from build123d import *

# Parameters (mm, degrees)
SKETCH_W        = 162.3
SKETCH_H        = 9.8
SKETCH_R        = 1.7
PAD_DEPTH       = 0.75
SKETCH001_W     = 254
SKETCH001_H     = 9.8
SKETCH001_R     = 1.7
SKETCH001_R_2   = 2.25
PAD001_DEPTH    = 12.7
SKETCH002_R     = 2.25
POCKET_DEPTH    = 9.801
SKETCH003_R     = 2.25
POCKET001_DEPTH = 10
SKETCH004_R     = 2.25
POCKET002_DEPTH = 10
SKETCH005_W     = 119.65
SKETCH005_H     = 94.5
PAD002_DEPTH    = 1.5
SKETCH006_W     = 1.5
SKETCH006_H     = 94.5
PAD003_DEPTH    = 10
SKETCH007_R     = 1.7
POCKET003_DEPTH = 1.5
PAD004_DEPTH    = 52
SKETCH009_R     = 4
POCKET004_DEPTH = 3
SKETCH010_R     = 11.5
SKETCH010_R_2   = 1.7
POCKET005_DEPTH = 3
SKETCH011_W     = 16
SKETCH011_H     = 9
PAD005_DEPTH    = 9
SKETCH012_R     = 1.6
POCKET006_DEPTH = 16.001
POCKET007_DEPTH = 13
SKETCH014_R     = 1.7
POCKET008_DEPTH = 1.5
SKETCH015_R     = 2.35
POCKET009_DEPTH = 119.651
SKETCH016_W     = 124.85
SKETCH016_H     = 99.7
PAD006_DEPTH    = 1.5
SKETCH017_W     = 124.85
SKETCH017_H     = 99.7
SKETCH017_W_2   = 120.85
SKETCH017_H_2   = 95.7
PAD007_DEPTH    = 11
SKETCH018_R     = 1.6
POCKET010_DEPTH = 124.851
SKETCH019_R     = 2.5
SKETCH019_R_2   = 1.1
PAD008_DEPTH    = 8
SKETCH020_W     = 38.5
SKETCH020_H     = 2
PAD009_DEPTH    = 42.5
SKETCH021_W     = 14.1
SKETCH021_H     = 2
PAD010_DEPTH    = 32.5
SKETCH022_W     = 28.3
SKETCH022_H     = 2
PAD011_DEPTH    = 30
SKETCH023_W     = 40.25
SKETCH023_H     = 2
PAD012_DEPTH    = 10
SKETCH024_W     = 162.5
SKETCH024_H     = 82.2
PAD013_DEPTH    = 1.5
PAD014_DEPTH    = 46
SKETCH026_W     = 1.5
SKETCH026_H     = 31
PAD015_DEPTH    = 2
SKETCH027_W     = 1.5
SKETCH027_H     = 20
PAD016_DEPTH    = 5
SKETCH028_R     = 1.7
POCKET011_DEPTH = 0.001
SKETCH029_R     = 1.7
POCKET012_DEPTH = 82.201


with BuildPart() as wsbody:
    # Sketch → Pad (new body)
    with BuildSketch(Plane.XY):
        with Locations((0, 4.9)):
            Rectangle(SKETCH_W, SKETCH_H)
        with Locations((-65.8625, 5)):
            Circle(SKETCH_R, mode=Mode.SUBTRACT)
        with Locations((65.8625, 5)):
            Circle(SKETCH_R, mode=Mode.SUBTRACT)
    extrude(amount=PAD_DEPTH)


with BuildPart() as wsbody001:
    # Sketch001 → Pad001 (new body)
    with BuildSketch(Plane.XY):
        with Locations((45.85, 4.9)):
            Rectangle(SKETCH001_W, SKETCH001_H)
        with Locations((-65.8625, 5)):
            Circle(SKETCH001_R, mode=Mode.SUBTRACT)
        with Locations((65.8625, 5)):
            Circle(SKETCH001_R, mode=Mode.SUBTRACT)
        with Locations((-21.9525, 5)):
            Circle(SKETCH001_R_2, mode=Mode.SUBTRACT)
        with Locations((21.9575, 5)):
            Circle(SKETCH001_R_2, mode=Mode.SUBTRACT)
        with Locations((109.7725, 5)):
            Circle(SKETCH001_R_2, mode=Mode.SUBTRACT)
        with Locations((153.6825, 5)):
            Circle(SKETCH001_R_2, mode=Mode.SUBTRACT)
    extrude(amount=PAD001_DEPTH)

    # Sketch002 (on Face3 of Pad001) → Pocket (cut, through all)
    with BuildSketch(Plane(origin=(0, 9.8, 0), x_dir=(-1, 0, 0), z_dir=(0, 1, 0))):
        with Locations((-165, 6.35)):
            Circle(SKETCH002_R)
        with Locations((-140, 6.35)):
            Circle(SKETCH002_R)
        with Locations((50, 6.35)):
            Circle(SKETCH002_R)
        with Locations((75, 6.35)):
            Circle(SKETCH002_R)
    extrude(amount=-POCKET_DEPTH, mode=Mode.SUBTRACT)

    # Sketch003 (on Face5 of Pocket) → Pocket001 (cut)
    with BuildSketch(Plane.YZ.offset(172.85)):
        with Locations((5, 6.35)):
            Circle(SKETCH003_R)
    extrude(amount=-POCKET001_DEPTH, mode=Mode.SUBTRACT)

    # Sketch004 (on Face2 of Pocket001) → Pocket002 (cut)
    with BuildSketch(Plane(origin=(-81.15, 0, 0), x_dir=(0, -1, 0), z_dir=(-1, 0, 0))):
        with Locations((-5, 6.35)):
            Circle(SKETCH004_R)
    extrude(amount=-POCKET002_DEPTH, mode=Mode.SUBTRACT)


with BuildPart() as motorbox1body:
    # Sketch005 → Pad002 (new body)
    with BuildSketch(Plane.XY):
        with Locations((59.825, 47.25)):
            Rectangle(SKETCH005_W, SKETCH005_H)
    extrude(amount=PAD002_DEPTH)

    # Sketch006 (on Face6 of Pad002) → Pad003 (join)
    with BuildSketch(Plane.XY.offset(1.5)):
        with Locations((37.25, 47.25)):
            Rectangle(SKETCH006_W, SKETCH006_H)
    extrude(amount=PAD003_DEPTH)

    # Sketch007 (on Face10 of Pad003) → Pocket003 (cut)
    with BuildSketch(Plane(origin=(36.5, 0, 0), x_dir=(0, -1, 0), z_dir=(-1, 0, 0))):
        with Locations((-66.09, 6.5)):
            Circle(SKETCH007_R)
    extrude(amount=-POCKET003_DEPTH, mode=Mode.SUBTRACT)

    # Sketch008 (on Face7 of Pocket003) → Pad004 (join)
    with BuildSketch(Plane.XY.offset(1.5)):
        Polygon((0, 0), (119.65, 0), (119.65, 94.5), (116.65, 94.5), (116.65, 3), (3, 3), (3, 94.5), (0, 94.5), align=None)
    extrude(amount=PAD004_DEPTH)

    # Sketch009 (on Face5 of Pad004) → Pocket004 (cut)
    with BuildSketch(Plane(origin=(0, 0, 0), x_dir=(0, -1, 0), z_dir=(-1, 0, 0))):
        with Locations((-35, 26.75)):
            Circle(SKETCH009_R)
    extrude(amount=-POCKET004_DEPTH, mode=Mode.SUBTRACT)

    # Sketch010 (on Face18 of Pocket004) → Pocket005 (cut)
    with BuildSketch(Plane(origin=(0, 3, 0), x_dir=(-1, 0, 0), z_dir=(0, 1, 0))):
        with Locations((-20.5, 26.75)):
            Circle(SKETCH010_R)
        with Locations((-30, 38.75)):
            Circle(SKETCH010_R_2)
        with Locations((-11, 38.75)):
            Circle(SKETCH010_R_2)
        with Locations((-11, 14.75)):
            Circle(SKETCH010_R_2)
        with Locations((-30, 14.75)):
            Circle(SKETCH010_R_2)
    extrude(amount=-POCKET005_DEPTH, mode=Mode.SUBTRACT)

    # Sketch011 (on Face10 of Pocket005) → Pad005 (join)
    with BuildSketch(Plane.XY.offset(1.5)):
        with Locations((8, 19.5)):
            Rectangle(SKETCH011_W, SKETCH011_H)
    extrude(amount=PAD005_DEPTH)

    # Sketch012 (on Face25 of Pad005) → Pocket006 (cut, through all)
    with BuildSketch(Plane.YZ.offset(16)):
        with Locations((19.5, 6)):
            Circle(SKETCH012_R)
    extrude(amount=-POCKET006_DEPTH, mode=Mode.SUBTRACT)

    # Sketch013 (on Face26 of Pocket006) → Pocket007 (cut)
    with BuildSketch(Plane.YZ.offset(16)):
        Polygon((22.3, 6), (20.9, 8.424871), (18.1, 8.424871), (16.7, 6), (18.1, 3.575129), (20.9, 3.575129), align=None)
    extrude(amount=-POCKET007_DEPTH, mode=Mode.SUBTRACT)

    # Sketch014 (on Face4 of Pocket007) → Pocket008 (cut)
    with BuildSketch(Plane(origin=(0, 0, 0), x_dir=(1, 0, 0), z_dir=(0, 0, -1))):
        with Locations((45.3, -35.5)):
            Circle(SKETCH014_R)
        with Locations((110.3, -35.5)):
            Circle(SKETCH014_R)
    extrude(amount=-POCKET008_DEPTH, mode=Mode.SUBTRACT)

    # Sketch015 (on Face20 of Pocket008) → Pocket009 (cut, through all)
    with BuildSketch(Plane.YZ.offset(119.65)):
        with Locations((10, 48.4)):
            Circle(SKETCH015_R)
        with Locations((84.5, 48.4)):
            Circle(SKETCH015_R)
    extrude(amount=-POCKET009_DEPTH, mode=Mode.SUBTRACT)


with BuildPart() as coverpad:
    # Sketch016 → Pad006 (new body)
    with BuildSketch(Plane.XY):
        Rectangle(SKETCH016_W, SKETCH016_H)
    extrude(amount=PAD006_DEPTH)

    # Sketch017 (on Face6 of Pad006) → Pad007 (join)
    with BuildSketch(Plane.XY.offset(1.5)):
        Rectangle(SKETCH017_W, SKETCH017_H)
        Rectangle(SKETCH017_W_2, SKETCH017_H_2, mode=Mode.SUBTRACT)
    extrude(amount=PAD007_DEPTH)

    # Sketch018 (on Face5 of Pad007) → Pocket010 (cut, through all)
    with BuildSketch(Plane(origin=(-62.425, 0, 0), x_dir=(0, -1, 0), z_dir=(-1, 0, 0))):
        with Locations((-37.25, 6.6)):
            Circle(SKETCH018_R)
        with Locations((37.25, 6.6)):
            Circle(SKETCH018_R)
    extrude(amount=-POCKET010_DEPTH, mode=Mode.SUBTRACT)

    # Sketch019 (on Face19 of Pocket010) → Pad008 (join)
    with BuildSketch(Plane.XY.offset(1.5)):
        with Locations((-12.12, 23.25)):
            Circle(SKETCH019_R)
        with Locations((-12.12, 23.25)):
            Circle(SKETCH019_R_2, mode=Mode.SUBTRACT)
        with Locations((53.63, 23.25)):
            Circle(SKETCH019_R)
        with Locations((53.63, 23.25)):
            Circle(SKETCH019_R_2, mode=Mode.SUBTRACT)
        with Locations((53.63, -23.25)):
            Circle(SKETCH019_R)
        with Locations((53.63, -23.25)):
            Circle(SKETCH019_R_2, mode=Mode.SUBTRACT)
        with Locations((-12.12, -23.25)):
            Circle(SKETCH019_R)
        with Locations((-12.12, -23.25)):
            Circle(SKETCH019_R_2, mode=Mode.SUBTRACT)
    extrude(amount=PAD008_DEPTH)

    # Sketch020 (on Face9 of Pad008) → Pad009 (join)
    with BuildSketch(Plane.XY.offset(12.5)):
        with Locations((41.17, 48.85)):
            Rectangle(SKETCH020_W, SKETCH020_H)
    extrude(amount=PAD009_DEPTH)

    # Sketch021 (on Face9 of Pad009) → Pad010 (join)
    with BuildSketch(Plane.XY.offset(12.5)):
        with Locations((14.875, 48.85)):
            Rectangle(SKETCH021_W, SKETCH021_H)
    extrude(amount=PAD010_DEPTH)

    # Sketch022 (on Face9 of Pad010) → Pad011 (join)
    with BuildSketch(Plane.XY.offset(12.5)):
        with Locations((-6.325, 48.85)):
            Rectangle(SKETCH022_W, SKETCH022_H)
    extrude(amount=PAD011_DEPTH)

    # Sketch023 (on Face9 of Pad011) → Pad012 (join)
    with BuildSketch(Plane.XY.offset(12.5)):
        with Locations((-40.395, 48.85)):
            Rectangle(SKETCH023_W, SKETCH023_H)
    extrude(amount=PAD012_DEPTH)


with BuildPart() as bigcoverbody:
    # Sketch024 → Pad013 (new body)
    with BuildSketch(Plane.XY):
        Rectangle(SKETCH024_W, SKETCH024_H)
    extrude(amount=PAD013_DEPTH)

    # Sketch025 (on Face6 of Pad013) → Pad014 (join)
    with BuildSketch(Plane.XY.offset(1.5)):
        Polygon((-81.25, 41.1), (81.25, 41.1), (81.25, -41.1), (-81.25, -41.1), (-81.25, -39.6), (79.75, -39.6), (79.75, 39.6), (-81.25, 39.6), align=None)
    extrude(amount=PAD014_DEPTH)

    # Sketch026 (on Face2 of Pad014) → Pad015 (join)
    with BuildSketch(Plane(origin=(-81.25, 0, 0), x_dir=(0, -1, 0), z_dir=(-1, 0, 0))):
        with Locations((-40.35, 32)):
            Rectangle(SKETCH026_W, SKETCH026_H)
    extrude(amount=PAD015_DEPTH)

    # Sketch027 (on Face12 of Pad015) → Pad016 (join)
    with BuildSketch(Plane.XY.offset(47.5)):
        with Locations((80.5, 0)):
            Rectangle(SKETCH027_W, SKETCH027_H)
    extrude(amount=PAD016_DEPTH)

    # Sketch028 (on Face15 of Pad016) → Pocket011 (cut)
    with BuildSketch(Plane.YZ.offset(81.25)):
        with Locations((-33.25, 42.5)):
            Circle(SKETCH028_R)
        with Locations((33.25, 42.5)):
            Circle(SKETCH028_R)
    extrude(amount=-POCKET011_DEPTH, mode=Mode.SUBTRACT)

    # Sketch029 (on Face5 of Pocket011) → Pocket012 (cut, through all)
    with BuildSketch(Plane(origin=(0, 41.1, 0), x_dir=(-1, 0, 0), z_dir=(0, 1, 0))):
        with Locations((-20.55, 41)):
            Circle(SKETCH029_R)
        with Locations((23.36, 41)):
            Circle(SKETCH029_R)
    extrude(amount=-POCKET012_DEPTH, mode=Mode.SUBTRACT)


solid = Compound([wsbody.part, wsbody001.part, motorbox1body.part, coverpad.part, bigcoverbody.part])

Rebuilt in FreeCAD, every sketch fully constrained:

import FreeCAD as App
import Part
import Sketcher

V = App.Vector
Q = App.Units.Quantity


def add_polygon(sketch, points):
    """Adds a closed chain of lines whose ends are joined by coincident constraints."""
    first, n = sketch.GeometryCount, len(points)
    for a, b in zip(points, points[1:] + points[:1]):
        sketch.addGeometry(Part.LineSegment(App.Vector(*a, 0), App.Vector(*b, 0)), False)
    for i in range(n):
        sketch.addConstraint(Sketcher.Constraint("Coincident", first + i, 2, first + (i + 1) % n, 1))

doc = App.newDocument("Part")
body = doc.addObject("PartDesign::Body", "Body")

# Sketch on XY plane
sketch1 = body.newObject("Sketcher::SketchObject", "Sketch")
sketch1.AttachmentSupport = (doc.getObject("XY_Plane"), [""])
sketch1.MapMode = "FlatFace"
add_polygon(sketch1, [(-81.2, 9.8), (-81.2, 0), (81.2, 0), (81.2, 9.8)])  # lines 0-3
sketch1.addGeometry(Part.Circle(V(-65.9, 5, 0), V(0, 0, 1), 1.7), False)  # 4
sketch1.addGeometry(Part.Circle(V(65.9, 5, 0), V(0, 0, 1), 1.7), False)  # 5
sketch1.addConstraint([
    Sketcher.Constraint("Vertical", 0),
    Sketcher.Constraint("Horizontal", 1),
    Sketcher.Constraint("Vertical", 2),
    Sketcher.Constraint("Horizontal", 3),
    Sketcher.Constraint("Equal", 4, 5),
    Sketcher.Constraint("Symmetric", 0, 2, 1, 2, -1, 1),
    Sketcher.Constraint("Symmetric", 4, 3, 5, 3, -2),
    Sketcher.Constraint("Diameter", 4, 3.4),
    Sketcher.Constraint("DistanceX", 1, 1, 1, 2, 162.3),
    Sketcher.Constraint("DistanceY", 0, 2, 0, 1, 9.8),
    Sketcher.Constraint("DistanceY", -1, 1, 4, 3, 5.0),
    Sketcher.Constraint("DistanceX", 4, 3, 5, 3, 131.725),
])
pad1 = body.newObject("PartDesign::Pad", "Pad")
pad1.Profile = sketch1
pad1.Length = 0.75
body2 = doc.addObject("PartDesign::Body", "Body001")

# Sketch on XY plane
sketch2 = body2.newObject("Sketcher::SketchObject", "Sketch001")
sketch2.AttachmentSupport = (doc.getObject("XY_Plane001"), [""])
sketch2.MapMode = "FlatFace"
add_polygon(sketch2, [(-81.2, 9.8), (-81.2, 0), (172.8, 0), (172.8, 9.8)])  # lines 0-3
sketch2.addGeometry(Part.Circle(V(-65.9, 5, 0), V(0, 0, 1), 1.7), False)  # 4
sketch2.addGeometry(Part.Circle(V(-22, 5, 0), V(0, 0, 1), 2.2), False)  # 5
sketch2.addGeometry(Part.Circle(V(22, 5, 0), V(0, 0, 1), 2.2), False)  # 6
sketch2.addGeometry(Part.Circle(V(65.9, 5, 0), V(0, 0, 1), 1.7), False)  # 7
sketch2.addGeometry(Part.Circle(V(109.8, 5, 0), V(0, 0, 1), 2.2), False)  # 8
sketch2.addGeometry(Part.Circle(V(153.7, 5, 0), V(0, 0, 1), 2.2), False)  # 9
sketch2.addConstraint([
    Sketcher.Constraint("Vertical", 0),
    Sketcher.Constraint("Horizontal", 1),
    Sketcher.Constraint("Vertical", 2),
    Sketcher.Constraint("Horizontal", 3),
    Sketcher.Constraint("Equal", 5, 6),
    Sketcher.Constraint("Equal", 4, 7),
    Sketcher.Constraint("Equal", 6, 8),
    Sketcher.Constraint("Equal", 8, 9),
    Sketcher.Constraint("Symmetric", 4, 3, 7, 3, -2),
    Sketcher.Constraint("PointOnObject", 0, 2, -1),
    Sketcher.Constraint("Horizontal", 4, 3, 5, 3),
    Sketcher.Constraint("Horizontal", 5, 3, 6, 3),
    Sketcher.Constraint("Horizontal", 7, 3, 8, 3),
    Sketcher.Constraint("Horizontal", 8, 3, 9, 3),
    Sketcher.Constraint("Diameter", 4, 3.4),
    Sketcher.Constraint("Diameter", 5, 4.5),
    Sketcher.Constraint("DistanceX", 1, 1, 1, 2, 254.0),
    Sketcher.Constraint("DistanceY", 0, 2, 0, 1, 9.8),
    Sketcher.Constraint("DistanceY", -1, 1, 4, 3, 5.0),
    Sketcher.Constraint("DistanceX", 0, 2, -1, 1, 81.15),
    Sketcher.Constraint("DistanceX", 4, 3, 5, 3, 43.91),
    Sketcher.Constraint("DistanceX", 5, 3, 6, 3, 43.91),
    Sketcher.Constraint("DistanceX", 7, 3, 8, 3, 43.91),
    Sketcher.Constraint("DistanceX", 8, 3, 9, 3, 43.91),
    Sketcher.Constraint("DistanceX", 6, 3, 7, 3, 43.905),
])
pad2 = body2.newObject("PartDesign::Pad", "Pad001")
pad2.Profile = sketch2
pad2.Length = 12.7

# Sketch on XZ plane
sketch3 = body2.newObject("Sketcher::SketchObject", "Sketch002")
sketch3.AttachmentSupport = (doc.getObject("XZ_Plane001"), [""])
sketch3.MapMode = "FlatFace"
sketch3.AttachmentOffset = App.Placement(V(0, 0, -9.8), App.Rotation())
sketch3.addGeometry([
    Part.Circle(V(165, 6.3, 0), V(0, 0, 1), 2.2),
    Part.Circle(V(140, 6.3, 0), V(0, 0, 1), 2.2),
    Part.Circle(V(-50, 6.3, 0), V(0, 0, 1), 2.2),
    Part.Circle(V(-75, 6.3, 0), V(0, 0, 1), 2.2),
], False)
sketch3.addConstraint([
    Sketcher.Constraint("Equal", 0, 1),
    Sketcher.Constraint("Equal", 1, 2),
    Sketcher.Constraint("Equal", 2, 3),
    Sketcher.Constraint("Horizontal", 0, 3, 1, 3),
    Sketcher.Constraint("Horizontal", 1, 3, 2, 3),
    Sketcher.Constraint("Horizontal", 2, 3, 3, 3),
    Sketcher.Constraint("Diameter", 0, 4.5),
    Sketcher.Constraint("DistanceX", -1, 1, 0, 3, 165.0),
    Sketcher.Constraint("DistanceX", -1, 1, 1, 3, 140.0),
    Sketcher.Constraint("DistanceX", 2, 3, -1, 1, 50.0),
    Sketcher.Constraint("DistanceX", 3, 3, -1, 1, 75.0),
    Sketcher.Constraint("DistanceY", -1, 1, 0, 3, 6.35),
])
pocket1 = body2.newObject("PartDesign::Pocket", "Pocket")
pocket1.Profile = sketch3
pocket1.Type = "ThroughAll"
pocket1.Reversed = True

# Sketch on YZ plane
sketch4 = body2.newObject("Sketcher::SketchObject", "Sketch003")
sketch4.AttachmentSupport = (doc.getObject("YZ_Plane001"), [""])
sketch4.MapMode = "FlatFace"
sketch4.AttachmentOffset = App.Placement(V(0, 0, 172.85), App.Rotation())
sketch4.addGeometry(Part.Circle(V(5, 6.3, 0), V(0, 0, 1), 2.2), False)
sketch4.addConstraint([
    Sketcher.Constraint("Diameter", 0, 4.5),
    Sketcher.Constraint("DistanceX", -1, 1, 0, 3, 5.0),
    Sketcher.Constraint("DistanceY", -1, 1, 0, 3, 6.35),
])
pocket2 = body2.newObject("PartDesign::Pocket", "Pocket001")
pocket2.Profile = sketch4
pocket2.Length = 10

# Sketch on YZ plane
sketch5 = body2.newObject("Sketcher::SketchObject", "Sketch004")
sketch5.AttachmentSupport = (doc.getObject("YZ_Plane001"), [""])
sketch5.MapMode = "FlatFace"
sketch5.AttachmentOffset = App.Placement(V(0, 0, -81.15), App.Rotation())
sketch5.addGeometry(Part.Circle(V(5, 6.3, 0), V(0, 0, 1), 2.2), False)
sketch5.addConstraint([
    Sketcher.Constraint("Diameter", 0, 4.5),
    Sketcher.Constraint("DistanceX", -1, 1, 0, 3, 5.0),
    Sketcher.Constraint("DistanceY", -1, 1, 0, 3, 6.35),
])
pocket3 = body2.newObject("PartDesign::Pocket", "Pocket002")
pocket3.Profile = sketch5
pocket3.Length = 10
pocket3.Reversed = True
body3 = doc.addObject("PartDesign::Body", "Body002")

# Sketch on XY plane
sketch6 = body3.newObject("Sketcher::SketchObject", "Sketch005")
sketch6.AttachmentSupport = (doc.getObject("XY_Plane002"), [""])
sketch6.MapMode = "FlatFace"
add_polygon(sketch6, [(0, 94), (0, 0), (120, 0), (120, 94)])  # lines 0-3
sketch6.addConstraint([
    Sketcher.Constraint("Vertical", 0),
    Sketcher.Constraint("Horizontal", 1),
    Sketcher.Constraint("Vertical", 2),
    Sketcher.Constraint("Horizontal", 3),
    Sketcher.Constraint("Coincident", 0, 2, -1, 1),
    Sketcher.Constraint("DistanceY", 0, 2, 0, 1, 94.5),
    Sketcher.Constraint("DistanceX", 1, 1, 1, 2, 119.65),
])
pad3 = body3.newObject("PartDesign::Pad", "Pad002")
pad3.Profile = sketch6
pad3.Length = 1.5

# Sketch on XY plane
sketch7 = body3.newObject("Sketcher::SketchObject", "Sketch006")
sketch7.AttachmentSupport = (doc.getObject("XY_Plane002"), [""])
sketch7.MapMode = "FlatFace"
sketch7.AttachmentOffset = App.Placement(V(0, 0, 1.5), App.Rotation())
add_polygon(sketch7, [(36.5, 94.5), (36.5, 0), (38, 0), (38, 94.5)])  # lines 0-3
sketch7.addConstraint([
    Sketcher.Constraint("Vertical", 0),
    Sketcher.Constraint("Horizontal", 1),
    Sketcher.Constraint("Vertical", 2),
    Sketcher.Constraint("Horizontal", 3),
    Sketcher.Constraint("PointOnObject", 0, 2, -1),
    Sketcher.Constraint("DistanceX", 1, 1, 1, 2, 1.5),
    Sketcher.Constraint("DistanceY", 0, 2, 0, 1, 94.5),
    Sketcher.Constraint("DistanceX", -1, 1, 1, 2, 38.0),
])
pad4 = body3.newObject("PartDesign::Pad", "Pad003")
pad4.Profile = sketch7
pad4.Length = 10

# Sketch on YZ plane
sketch8 = body3.newObject("Sketcher::SketchObject", "Sketch007")
sketch8.AttachmentSupport = (doc.getObject("YZ_Plane002"), [""])
sketch8.MapMode = "FlatFace"
sketch8.AttachmentOffset = App.Placement(V(0, 0, 36.5), App.Rotation())
sketch8.addGeometry(Part.Circle(V(66.1, 6.5, 0), V(0, 0, 1), 1.7), False)
sketch8.addConstraint([
    Sketcher.Constraint("Diameter", 0, 3.4),
    Sketcher.Constraint("DistanceY", -1, 1, 0, 3, 6.5),
    Sketcher.Constraint("DistanceX", -1, 1, 0, 3, 66.09),
])
pocket4 = body3.newObject("PartDesign::Pocket", "Pocket003")
pocket4.Profile = sketch8
pocket4.Length = 1.5
pocket4.Reversed = True

# Sketch on XY plane
sketch9 = body3.newObject("Sketcher::SketchObject", "Sketch008")
sketch9.AttachmentSupport = (doc.getObject("XY_Plane002"), [""])
sketch9.MapMode = "FlatFace"
sketch9.AttachmentOffset = App.Placement(V(0, 0, 1.5), App.Rotation())
add_polygon(sketch9, [(0, 0), (119.7, 0), (119.7, 94.5), (116.7, 94.5), (116.7, 3), (3, 3), (3, 94.5), (0, 94.5)])  # lines 0-7
sketch9.addConstraint([
    Sketcher.Constraint("Horizontal", 0),
    Sketcher.Constraint("Vertical", 1),
    Sketcher.Constraint("Horizontal", 2),
    Sketcher.Constraint("Vertical", 3),
    Sketcher.Constraint("Horizontal", 4),
    Sketcher.Constraint("Vertical", 5),
    Sketcher.Constraint("Horizontal", 6),
    Sketcher.Constraint("Vertical", 7),
    Sketcher.Constraint("Coincident", 7, 2, -1, 1),
    Sketcher.Constraint("Horizontal", 2, 2, 5, 2),
    Sketcher.Constraint("Equal", 2, 6),
    Sketcher.Constraint("DistanceX", 2, 2, 2, 1, 3.0),
    Sketcher.Constraint("DistanceY", 1, 1, 1, 2, 94.5),
    Sketcher.Constraint("DistanceY", 3, 2, 3, 1, 91.5),
    Sketcher.Constraint("DistanceX", 0, 1, 0, 2, 119.65),
])
pad5 = body3.newObject("PartDesign::Pad", "Pad004")
pad5.Profile = sketch9
pad5.Length = 52

# Sketch on YZ plane
sketch10 = body3.newObject("Sketcher::SketchObject", "Sketch009")
sketch10.AttachmentSupport = (doc.getObject("YZ_Plane002"), [""])
sketch10.MapMode = "FlatFace"
sketch10.addGeometry(Part.Circle(V(35, 26.8, 0), V(0, 0, 1), 4), False)
sketch10.addConstraint([
    Sketcher.Constraint("Diameter", 0, 8.0),
    Sketcher.Constraint("DistanceX", -1, 1, 0, 3, 35.0),
    Sketcher.Constraint("DistanceY", -1, 1, 0, 3, 26.75),
])
pocket5 = body3.newObject("PartDesign::Pocket", "Pocket004")
pocket5.Profile = sketch10
pocket5.Length = 3
pocket5.Reversed = True

# Sketch on XZ plane
sketch11 = body3.newObject("Sketcher::SketchObject", "Sketch010")
sketch11.AttachmentSupport = (doc.getObject("XZ_Plane002"), [""])
sketch11.MapMode = "FlatFace"
sketch11.AttachmentOffset = App.Placement(V(0, 0, -3), App.Rotation())
sketch11.addGeometry([
    Part.Circle(V(20.5, 26.8, 0), V(0, 0, 1), 11.5),  # 0
    Part.Circle(V(30, 38.8, 0), V(0, 0, 1), 1.7),  # 1
    Part.Circle(V(11, 38.8, 0), V(0, 0, 1), 1.7),  # 2
    Part.Circle(V(11, 14.8, 0), V(0, 0, 1), 1.7),  # 3
    Part.Circle(V(30, 14.8, 0), V(0, 0, 1), 1.7),  # 4
], False)
sketch11.addConstraint([
    Sketcher.Constraint("Equal", 1, 2),
    Sketcher.Constraint("Equal", 2, 3),
    Sketcher.Constraint("Equal", 3, 4),
    Sketcher.Constraint("Horizontal", 1, 3, 2, 3),
    Sketcher.Constraint("Horizontal", 3, 3, 4, 3),
    Sketcher.Constraint("Vertical", 2, 3, 3, 3),
    Sketcher.Constraint("Vertical", 1, 3, 4, 3),
    Sketcher.Constraint("Diameter", 0, 23.0),
    Sketcher.Constraint("Diameter", 1, 3.4),
    Sketcher.Constraint("DistanceX", -1, 1, 1, 3, 30.0),
    Sketcher.Constraint("DistanceX", -1, 1, 2, 3, 11.0),
    Sketcher.Constraint("DistanceY", 0, 3, 1, 3, 12.0),
    Sketcher.Constraint("DistanceY", 3, 3, 0, 3, 12.0),
    Sketcher.Constraint("DistanceX", -1, 1, 0, 3, 20.5),
    Sketcher.Constraint("DistanceY", -1, 1, 0, 3, 26.75),
])
pocket6 = body3.newObject("PartDesign::Pocket", "Pocket005")
pocket6.Profile = sketch11
pocket6.Length = 3
pocket6.Reversed = True

# Sketch on XY plane
sketch12 = body3.newObject("Sketcher::SketchObject", "Sketch011")
sketch12.AttachmentSupport = (doc.getObject("XY_Plane002"), [""])
sketch12.MapMode = "FlatFace"
sketch12.AttachmentOffset = App.Placement(V(0, 0, 1.5), App.Rotation())
add_polygon(sketch12, [(0, 24), (0, 15), (16, 15), (16, 24)])  # lines 0-3
sketch12.addConstraint([
    Sketcher.Constraint("Vertical", 0),
    Sketcher.Constraint("Horizontal", 1),
    Sketcher.Constraint("Vertical", 2),
    Sketcher.Constraint("Horizontal", 3),
    Sketcher.Constraint("PointOnObject", 0, 2, -2),
    Sketcher.Constraint("DistanceX", 1, 1, 1, 2, 16.0),
    Sketcher.Constraint("DistanceY", 0, 2, 0, 1, 9.0),
    Sketcher.Constraint("DistanceY", -1, 1, 0, 2, 15.0),
])
pad6 = body3.newObject("PartDesign::Pad", "Pad005")
pad6.Profile = sketch12
pad6.Length = 9

# Sketch on YZ plane
sketch13 = body3.newObject("Sketcher::SketchObject", "Sketch012")
sketch13.AttachmentSupport = (doc.getObject("YZ_Plane002"), [""])
sketch13.MapMode = "FlatFace"
sketch13.AttachmentOffset = App.Placement(V(0, 0, 16), App.Rotation())
sketch13.addGeometry(Part.Circle(V(19.5, 6, 0), V(0, 0, 1), 1.6), False)
sketch13.addConstraint([
    Sketcher.Constraint("Diameter", 0, 3.2),
    Sketcher.Constraint("DistanceY", -1, 1, 0, 3, 6.0),
    Sketcher.Constraint("DistanceX", -1, 1, 0, 3, 19.5),
])
pocket7 = body3.newObject("PartDesign::Pocket", "Pocket006")
pocket7.Profile = sketch13
pocket7.Type = "ThroughAll"

# Sketch on YZ plane
sketch14 = body3.newObject("Sketcher::SketchObject", "Sketch013")
sketch14.AttachmentSupport = (doc.getObject("YZ_Plane002"), [""])
sketch14.MapMode = "FlatFace"
sketch14.AttachmentOffset = App.Placement(V(0, 0, 16), App.Rotation())
add_polygon(sketch14, [(22.3, 6), (20.9, 8.4), (18.1, 8.4), (16.7, 6), (18.1, 3.6), (20.9, 3.6)])  # lines 0-5
sketch14.addConstraint([
    Sketcher.Constraint("Horizontal", 1),
    Sketcher.Constraint("Horizontal", 4),
    Sketcher.Constraint("Parallel", 0, 3),
    Sketcher.Constraint("Parallel", 2, 5),
    Sketcher.Constraint("Horizontal", 2, 2, 5, 2),
    Sketcher.Constraint("Vertical", 1, 2, 3, 2),
    Sketcher.Constraint("Vertical", 0, 2, 4, 2),
    Sketcher.Constraint("Angle", 0, Q("120.000001 deg")),
    Sketcher.Constraint("DistanceX", 1, 2, 1, 1, 2.8),
    Sketcher.Constraint("DistanceY", -1, 1, 2, 2, 6.0),
    Sketcher.Constraint("Distance", 0, 2.8),
    Sketcher.Constraint("DistanceX", -1, 1, 0, 2, 20.9),
])
pocket8 = body3.newObject("PartDesign::Pocket", "Pocket007")
pocket8.Profile = sketch14
pocket8.Length = 13

# Sketch on XY plane
sketch15 = body3.newObject("Sketcher::SketchObject", "Sketch014")
sketch15.AttachmentSupport = (doc.getObject("XY_Plane002"), [""])
sketch15.MapMode = "FlatFace"
sketch15.addGeometry([
    Part.Circle(V(45.3, 35.5, 0), V(0, 0, 1), 1.7),
    Part.Circle(V(110.3, 35.5, 0), V(0, 0, 1), 1.7),
], False)
sketch15.addConstraint([
    Sketcher.Constraint("Equal", 0, 1),
    Sketcher.Constraint("Horizontal", 0, 3, 1, 3),
    Sketcher.Constraint("Diameter", 0, 3.4),
    Sketcher.Constraint("DistanceX", 0, 3, 1, 3, 65.0),
    Sketcher.Constraint("DistanceX", -1, 1, 0, 3, 45.3),
    Sketcher.Constraint("DistanceY", -1, 1, 0, 3, 35.5),
])
pocket9 = body3.newObject("PartDesign::Pocket", "Pocket008")
pocket9.Profile = sketch15
pocket9.Length = 1.5
pocket9.Reversed = True

# Sketch on YZ plane
sketch16 = body3.newObject("Sketcher::SketchObject", "Sketch015")
sketch16.AttachmentSupport = (doc.getObject("YZ_Plane002"), [""])
sketch16.MapMode = "FlatFace"
sketch16.AttachmentOffset = App.Placement(V(0, 0, 119.65), App.Rotation())
sketch16.addGeometry([
    Part.Circle(V(10, 48.4, 0), V(0, 0, 1), 2.4),
    Part.Circle(V(84.5, 48.4, 0), V(0, 0, 1), 2.4),
], False)
sketch16.addConstraint([
    Sketcher.Constraint("Equal", 0, 1),
    Sketcher.Constraint("Horizontal", 0, 3, 1, 3),
    Sketcher.Constraint("Diameter", 0, 4.7),
    Sketcher.Constraint("DistanceX", -1, 1, 0, 3, 10.0),
    Sketcher.Constraint("DistanceY", -1, 1, 0, 3, 48.4),
    Sketcher.Constraint("DistanceX", -1, 1, 1, 3, 84.5),
])
pocket10 = body3.newObject("PartDesign::Pocket", "Pocket009")
pocket10.Profile = sketch16
pocket10.Type = "ThroughAll"
body4 = doc.addObject("PartDesign::Body", "Body003")

# Sketch on XY plane
sketch17 = body4.newObject("Sketcher::SketchObject", "Sketch016")
sketch17.AttachmentSupport = (doc.getObject("XY_Plane003"), [""])
sketch17.MapMode = "FlatFace"
add_polygon(sketch17, [(-62, 50), (-62, -50), (62, -50), (62, 50)])  # lines 0-3
sketch17.addConstraint([
    Sketcher.Constraint("Vertical", 0),
    Sketcher.Constraint("Horizontal", 1),
    Sketcher.Constraint("Vertical", 2),
    Sketcher.Constraint("Horizontal", 3),
    Sketcher.Constraint("Symmetric", 0, 2, 2, 2, -1, 1),
    Sketcher.Constraint("DistanceY", 0, 2, 0, 1, 99.7),
    Sketcher.Constraint("DistanceX", 1, 1, 1, 2, 124.85),
])
pad7 = body4.newObject("PartDesign::Pad", "Pad006")
pad7.Profile = sketch17
pad7.Length = 1.5

# Sketch on XY plane
sketch18 = body4.newObject("Sketcher::SketchObject", "Sketch017")
sketch18.AttachmentSupport = (doc.getObject("XY_Plane003"), [""])
sketch18.MapMode = "FlatFace"
sketch18.AttachmentOffset = App.Placement(V(0, 0, 1.5), App.Rotation())
add_polygon(sketch18, [(-62, 50), (-62, -50), (62, -50), (62, 50)])  # lines 0-3
add_polygon(sketch18, [(60, -48), (-60, -48), (-60, 48), (60, 48)])  # lines 4-7
sketch18.addConstraint([
    Sketcher.Constraint("Vertical", 0),
    Sketcher.Constraint("Horizontal", 1),
    Sketcher.Constraint("Vertical", 2),
    Sketcher.Constraint("Horizontal", 3),
    Sketcher.Constraint("Horizontal", 4),
    Sketcher.Constraint("Vertical", 5),
    Sketcher.Constraint("Horizontal", 6),
    Sketcher.Constraint("Vertical", 7),
    Sketcher.Constraint("Symmetric", 0, 2, 2, 2, -1, 1),
    Sketcher.Constraint("Symmetric", 4, 2, 6, 2, -1, 1),
    Sketcher.Constraint("DistanceY", 0, 2, 0, 1, 99.7),
    Sketcher.Constraint("DistanceY", 5, 1, 5, 2, 95.7),
    Sketcher.Constraint("DistanceX", 0, 2, 4, 2, 2.0),
    Sketcher.Constraint("DistanceX", 1, 1, 1, 2, 124.85),
])
pad8 = body4.newObject("PartDesign::Pad", "Pad007")
pad8.Profile = sketch18
pad8.Length = 11

# Sketch on YZ plane
sketch19 = body4.newObject("Sketcher::SketchObject", "Sketch018")
sketch19.AttachmentSupport = (doc.getObject("YZ_Plane003"), [""])
sketch19.MapMode = "FlatFace"
sketch19.AttachmentOffset = App.Placement(V(0, 0, -62.425), App.Rotation())
sketch19.addGeometry([
    Part.Circle(V(37.2, 6.6, 0), V(0, 0, 1), 1.6),
    Part.Circle(V(-37.2, 6.6, 0), V(0, 0, 1), 1.6),
], False)
sketch19.addConstraint([
    Sketcher.Constraint("Equal", 0, 1),
    Sketcher.Constraint("Symmetric", 0, 3, 1, 3, -2),
    Sketcher.Constraint("Diameter", 0, 3.2),
    Sketcher.Constraint("DistanceY", -1, 1, 0, 3, 6.6),
    Sketcher.Constraint("DistanceX", 1, 3, 0, 3, 74.5),
])
pocket11 = body4.newObject("PartDesign::Pocket", "Pocket010")
pocket11.Profile = sketch19
pocket11.Type = "ThroughAll"
pocket11.Reversed = True

# Sketch on XY plane
sketch20 = body4.newObject("Sketcher::SketchObject", "Sketch019")
sketch20.AttachmentSupport = (doc.getObject("XY_Plane003"), [""])
sketch20.MapMode = "FlatFace"
sketch20.AttachmentOffset = App.Placement(V(0, 0, 1.5), App.Rotation())
sketch20.addGeometry([
    Part.Circle(V(-12.1, 23.2, 0), V(0, 0, 1), 2.5),  # 0
    Part.Circle(V(-12.1, 23.2, 0), V(0, 0, 1), 1.1),  # 1
    Part.Circle(V(53.6, 23.2, 0), V(0, 0, 1), 2.5),  # 2
    Part.Circle(V(53.6, 23.2, 0), V(0, 0, 1), 1.1),  # 3
    Part.Circle(V(53.6, -23.2, 0), V(0, 0, 1), 2.5),  # 4
    Part.Circle(V(53.6, -23.2, 0), V(0, 0, 1), 1.1),  # 5
    Part.Circle(V(-12.1, -23.2, 0), V(0, 0, 1), 2.5),  # 6
    Part.Circle(V(-12.1, -23.2, 0), V(0, 0, 1), 1.1),  # 7
], False)
sketch20.addConstraint([
    Sketcher.Constraint("Coincident", 1, 3, 0, 3),
    Sketcher.Constraint("Coincident", 3, 3, 2, 3),
    Sketcher.Constraint("Coincident", 5, 3, 4, 3),
    Sketcher.Constraint("Coincident", 7, 3, 6, 3),
    Sketcher.Constraint("Equal", 0, 2),
    Sketcher.Constraint("Equal", 1, 3),
    Sketcher.Constraint("Equal", 2, 4),
    Sketcher.Constraint("Equal", 3, 5),
    Sketcher.Constraint("Equal", 4, 6),
    Sketcher.Constraint("Equal", 5, 7),
    Sketcher.Constraint("Symmetric", 2, 3, 4, 3, -1),
    Sketcher.Constraint("Symmetric", 0, 3, 6, 3, -1),
    Sketcher.Constraint("Horizontal", 1, 3, 2, 3),
    Sketcher.Constraint("Diameter", 0, 5.0),
    Sketcher.Constraint("Diameter", 1, 2.2),
    Sketcher.Constraint("DistanceY", 4, 3, 2, 3, 46.5),
    Sketcher.Constraint("DistanceX", 0, 3, -1, 1, 12.12),
    Sketcher.Constraint("DistanceX", -1, 1, 2, 3, 53.63),
])
pad9 = body4.newObject("PartDesign::Pad", "Pad008")
pad9.Profile = sketch20
pad9.Length = 8

# Sketch on XY plane
sketch21 = body4.newObject("Sketcher::SketchObject", "Sketch020")
sketch21.AttachmentSupport = (doc.getObject("XY_Plane003"), [""])
sketch21.MapMode = "FlatFace"
sketch21.AttachmentOffset = App.Placement(V(0, 0, 12.5), App.Rotation())
add_polygon(sketch21, [(21.9, 49.9), (21.9, 47.9), (60.4, 47.9), (60.4, 49.9)])  # lines 0-3
sketch21.addConstraint([
    Sketcher.Constraint("Vertical", 0),
    Sketcher.Constraint("Horizontal", 1),
    Sketcher.Constraint("Vertical", 2),
    Sketcher.Constraint("Horizontal", 3),
    Sketcher.Constraint("DistanceY", 0, 2, 0, 1, 2.0),
    Sketcher.Constraint("DistanceX", 1, 1, 1, 2, 38.5),
    Sketcher.Constraint("DistanceX", -1, 1, 0, 2, 21.92),
    Sketcher.Constraint("DistanceY", -1, 1, 0, 2, 47.85),
])
pad10 = body4.newObject("PartDesign::Pad", "Pad009")
pad10.Profile = sketch21
pad10.Length = 42.5

# Sketch on XY plane
sketch22 = body4.newObject("Sketcher::SketchObject", "Sketch021")
sketch22.AttachmentSupport = (doc.getObject("XY_Plane003"), [""])
sketch22.MapMode = "FlatFace"
sketch22.AttachmentOffset = App.Placement(V(0, 0, 12.5), App.Rotation())
add_polygon(sketch22, [(7.8, 49.9), (7.8, 47.9), (21.9, 47.9), (21.9, 49.9)])  # lines 0-3
sketch22.addConstraint([
    Sketcher.Constraint("Vertical", 0),
    Sketcher.Constraint("Horizontal", 1),
    Sketcher.Constraint("Vertical", 2),
    Sketcher.Constraint("Horizontal", 3),
    Sketcher.Constraint("DistanceY", 0, 2, 0, 1, 2.0),
    Sketcher.Constraint("DistanceX", 1, 1, 1, 2, 14.1),
    Sketcher.Constraint("DistanceY", -1, 1, 0, 2, 47.85),
    Sketcher.Constraint("DistanceX", -1, 1, 0, 2, 7.825),
])
pad11 = body4.newObject("PartDesign::Pad", "Pad010")
pad11.Profile = sketch22
pad11.Length = 32.5

# Sketch on XY plane
sketch23 = body4.newObject("Sketcher::SketchObject", "Sketch022")
sketch23.AttachmentSupport = (doc.getObject("XY_Plane003"), [""])
sketch23.MapMode = "FlatFace"
sketch23.AttachmentOffset = App.Placement(V(0, 0, 12.5), App.Rotation())
add_polygon(sketch23, [(-20.5, 49.9), (-20.5, 47.9), (7.8, 47.9), (7.8, 49.9)])  # lines 0-3
sketch23.addConstraint([
    Sketcher.Constraint("Vertical", 0),
    Sketcher.Constraint("Horizontal", 1),
    Sketcher.Constraint("Vertical", 2),
    Sketcher.Constraint("Horizontal", 3),
    Sketcher.Constraint("DistanceY", 0, 2, 0, 1, 2.0),
    Sketcher.Constraint("DistanceX", 1, 1, 1, 2, 28.3),
    Sketcher.Constraint("DistanceY", -1, 1, 0, 2, 47.85),
    Sketcher.Constraint("DistanceX", 0, 2, -1, 1, 20.475),
])
pad12 = body4.newObject("PartDesign::Pad", "Pad011")
pad12.Profile = sketch23
pad12.Length = 30

# Sketch on XY plane
sketch24 = body4.newObject("Sketcher::SketchObject", "Sketch023")
sketch24.AttachmentSupport = (doc.getObject("XY_Plane003"), [""])
sketch24.MapMode = "FlatFace"
sketch24.AttachmentOffset = App.Placement(V(0, 0, 12.5), App.Rotation())
add_polygon(sketch24, [(-60.5, 49.9), (-60.5, 47.9), (-20.3, 47.9), (-20.3, 49.9)])  # lines 0-3
sketch24.addConstraint([
    Sketcher.Constraint("Vertical", 0),
    Sketcher.Constraint("Horizontal", 1),
    Sketcher.Constraint("Vertical", 2),
    Sketcher.Constraint("Horizontal", 3),
    Sketcher.Constraint("DistanceY", 0, 2, 0, 1, 2.0),
    Sketcher.Constraint("DistanceX", 1, 1, 1, 2, 40.25),
    Sketcher.Constraint("DistanceX", 0, 2, -1, 1, 60.52),
    Sketcher.Constraint("DistanceY", -1, 1, 0, 2, 47.85),
])
pad13 = body4.newObject("PartDesign::Pad", "Pad012")
pad13.Profile = sketch24
pad13.Length = 10
body5 = doc.addObject("PartDesign::Body", "Body004")

# Sketch on XY plane
sketch25 = body5.newObject("Sketcher::SketchObject", "Sketch024")
sketch25.AttachmentSupport = (doc.getObject("XY_Plane004"), [""])
sketch25.MapMode = "FlatFace"
add_polygon(sketch25, [(-81, 41), (-81, -41), (81, -41), (81, 41)])  # lines 0-3
sketch25.addConstraint([
    Sketcher.Constraint("Vertical", 0),
    Sketcher.Constraint("Horizontal", 1),
    Sketcher.Constraint("Vertical", 2),
    Sketcher.Constraint("Horizontal", 3),
    Sketcher.Constraint("Symmetric", 0, 2, 2, 2, -1, 1),
    Sketcher.Constraint("DistanceX", 1, 1, 1, 2, 162.5),
    Sketcher.Constraint("DistanceY", 0, 2, 0, 1, 82.2),
])
pad14 = body5.newObject("PartDesign::Pad", "Pad013")
pad14.Profile = sketch25
pad14.Length = 1.5

# Sketch on XY plane
sketch26 = body5.newObject("Sketcher::SketchObject", "Sketch025")
sketch26.AttachmentSupport = (doc.getObject("XY_Plane004"), [""])
sketch26.MapMode = "FlatFace"
sketch26.AttachmentOffset = App.Placement(V(0, 0, 1.5), App.Rotation())
add_polygon(sketch26, [(81.2, 41.1), (-81.2, 41.1), (-81.2, 39.6), (79.8, 39.6), (79.8, -39.6), (-81.2, -39.6), (-81.2, -41.1), (81.2, -41.1)])  # lines 0-7
sketch26.addConstraint([
    Sketcher.Constraint("Horizontal", 0),
    Sketcher.Constraint("Vertical", 1),
    Sketcher.Constraint("Horizontal", 2),
    Sketcher.Constraint("Vertical", 3),
    Sketcher.Constraint("Horizontal", 4),
    Sketcher.Constraint("Vertical", 5),
    Sketcher.Constraint("Horizontal", 6),
    Sketcher.Constraint("Vertical", 7),
    Sketcher.Constraint("Symmetric", 0, 2, 6, 2, -1, 1),
    Sketcher.Constraint("Symmetric", 1, 2, 4, 2, -1),
    Sketcher.Constraint("DistanceX", 2, 1, 2, 2, 161.0),
    Sketcher.Constraint("DistanceX", 0, 2, 0, 1, 162.5),
    Sketcher.Constraint("DistanceY", 1, 2, 1, 1, 1.5),
    Sketcher.Constraint("DistanceY", 3, 2, 3, 1, 79.2),
])
pad15 = body5.newObject("PartDesign::Pad", "Pad014")
pad15.Profile = sketch26
pad15.Length = 46

# Sketch on YZ plane
sketch27 = body5.newObject("Sketcher::SketchObject", "Sketch026")
sketch27.AttachmentSupport = (doc.getObject("YZ_Plane004"), [""])
sketch27.MapMode = "FlatFace"
sketch27.AttachmentOffset = App.Placement(V(0, 0, -81.25), App.Rotation())
add_polygon(sketch27, [(41.1, 47.5), (41.1, 16.5), (39.6, 16.5), (39.6, 47.5)])  # lines 0-3
sketch27.addConstraint([
    Sketcher.Constraint("Vertical", 0),
    Sketcher.Constraint("Horizontal", 1),
    Sketcher.Constraint("Vertical", 2),
    Sketcher.Constraint("Horizontal", 3),
    Sketcher.Constraint("DistanceY", 0, 2, 0, 1, 31.0),
    Sketcher.Constraint("DistanceX", 1, 2, 1, 1, 1.5),
    Sketcher.Constraint("DistanceX", -1, 1, 0, 2, 41.1),
    Sketcher.Constraint("DistanceY", -1, 1, 0, 2, 16.5),
])
pad16 = body5.newObject("PartDesign::Pad", "Pad015")
pad16.Profile = sketch27
pad16.Length = 2
pad16.Reversed = True

# Sketch on XY plane
sketch28 = body5.newObject("Sketcher::SketchObject", "Sketch027")
sketch28.AttachmentSupport = (doc.getObject("XY_Plane004"), [""])
sketch28.MapMode = "FlatFace"
sketch28.AttachmentOffset = App.Placement(V(0, 0, 47.5), App.Rotation())
add_polygon(sketch28, [(79.8, 10), (79.8, -10), (81.2, -10), (81.2, 10)])  # lines 0-3
sketch28.addConstraint([
    Sketcher.Constraint("Vertical", 0),
    Sketcher.Constraint("Horizontal", 1),
    Sketcher.Constraint("Vertical", 2),
    Sketcher.Constraint("Horizontal", 3),
    Sketcher.Constraint("DistanceY", 0, 2, 0, 1, 20.0),
    Sketcher.Constraint("DistanceX", 1, 1, 1, 2, 1.5),
    Sketcher.Constraint("DistanceY", 0, 2, -1, 1, 10.0),
    Sketcher.Constraint("DistanceX", -1, 1, 0, 2, 79.75),
])
pad17 = body5.newObject("PartDesign::Pad", "Pad016")
pad17.Profile = sketch28
pad17.Length = 5

# Sketch on YZ plane
sketch29 = body5.newObject("Sketcher::SketchObject", "Sketch028")
sketch29.AttachmentSupport = (doc.getObject("YZ_Plane004"), [""])
sketch29.MapMode = "FlatFace"
sketch29.AttachmentOffset = App.Placement(V(0, 0, 81.25), App.Rotation())
sketch29.addGeometry([
    Part.Circle(V(-33.2, 42.5, 0), V(0, 0, 1), 1.7),
    Part.Circle(V(33.2, 42.5, 0), V(0, 0, 1), 1.7),
], False)
sketch29.addConstraint([
    Sketcher.Constraint("Equal", 0, 1),
    Sketcher.Constraint("Symmetric", 0, 3, 1, 3, -2),
    Sketcher.Constraint("Diameter", 0, 3.4),
    Sketcher.Constraint("DistanceY", -1, 1, 0, 3, 42.5),
    Sketcher.Constraint("DistanceX", 0, 3, 1, 3, 66.5),
])
pocket12 = body5.newObject("PartDesign::Pocket", "Pocket011")
pocket12.Profile = sketch29
pocket12.Length = 0.001

# Sketch on XZ plane
sketch30 = body5.newObject("Sketcher::SketchObject", "Sketch029")
sketch30.AttachmentSupport = (doc.getObject("XZ_Plane004"), [""])
sketch30.MapMode = "FlatFace"
sketch30.AttachmentOffset = App.Placement(V(0, 0, -41.1), App.Rotation())
sketch30.addGeometry([
    Part.Circle(V(20.6, 41, 0), V(0, 0, 1), 1.7),
    Part.Circle(V(-23.4, 41, 0), V(0, 0, 1), 1.7),
], False)
sketch30.addConstraint([
    Sketcher.Constraint("Equal", 0, 1),
    Sketcher.Constraint("Horizontal", 0, 3, 1, 3),
    Sketcher.Constraint("Diameter", 0, 3.4),
    Sketcher.Constraint("DistanceY", -1, 1, 0, 3, 41.0),
    Sketcher.Constraint("DistanceX", -1, 1, 0, 3, 20.55),
    Sketcher.Constraint("DistanceX", 1, 3, -1, 1, 23.36),
])
pocket13 = body5.newObject("PartDesign::Pocket", "Pocket012")
pocket13.Profile = sketch30
pocket13.Type = "ThroughAll"
pocket13.Reversed = True

doc.recompute()
